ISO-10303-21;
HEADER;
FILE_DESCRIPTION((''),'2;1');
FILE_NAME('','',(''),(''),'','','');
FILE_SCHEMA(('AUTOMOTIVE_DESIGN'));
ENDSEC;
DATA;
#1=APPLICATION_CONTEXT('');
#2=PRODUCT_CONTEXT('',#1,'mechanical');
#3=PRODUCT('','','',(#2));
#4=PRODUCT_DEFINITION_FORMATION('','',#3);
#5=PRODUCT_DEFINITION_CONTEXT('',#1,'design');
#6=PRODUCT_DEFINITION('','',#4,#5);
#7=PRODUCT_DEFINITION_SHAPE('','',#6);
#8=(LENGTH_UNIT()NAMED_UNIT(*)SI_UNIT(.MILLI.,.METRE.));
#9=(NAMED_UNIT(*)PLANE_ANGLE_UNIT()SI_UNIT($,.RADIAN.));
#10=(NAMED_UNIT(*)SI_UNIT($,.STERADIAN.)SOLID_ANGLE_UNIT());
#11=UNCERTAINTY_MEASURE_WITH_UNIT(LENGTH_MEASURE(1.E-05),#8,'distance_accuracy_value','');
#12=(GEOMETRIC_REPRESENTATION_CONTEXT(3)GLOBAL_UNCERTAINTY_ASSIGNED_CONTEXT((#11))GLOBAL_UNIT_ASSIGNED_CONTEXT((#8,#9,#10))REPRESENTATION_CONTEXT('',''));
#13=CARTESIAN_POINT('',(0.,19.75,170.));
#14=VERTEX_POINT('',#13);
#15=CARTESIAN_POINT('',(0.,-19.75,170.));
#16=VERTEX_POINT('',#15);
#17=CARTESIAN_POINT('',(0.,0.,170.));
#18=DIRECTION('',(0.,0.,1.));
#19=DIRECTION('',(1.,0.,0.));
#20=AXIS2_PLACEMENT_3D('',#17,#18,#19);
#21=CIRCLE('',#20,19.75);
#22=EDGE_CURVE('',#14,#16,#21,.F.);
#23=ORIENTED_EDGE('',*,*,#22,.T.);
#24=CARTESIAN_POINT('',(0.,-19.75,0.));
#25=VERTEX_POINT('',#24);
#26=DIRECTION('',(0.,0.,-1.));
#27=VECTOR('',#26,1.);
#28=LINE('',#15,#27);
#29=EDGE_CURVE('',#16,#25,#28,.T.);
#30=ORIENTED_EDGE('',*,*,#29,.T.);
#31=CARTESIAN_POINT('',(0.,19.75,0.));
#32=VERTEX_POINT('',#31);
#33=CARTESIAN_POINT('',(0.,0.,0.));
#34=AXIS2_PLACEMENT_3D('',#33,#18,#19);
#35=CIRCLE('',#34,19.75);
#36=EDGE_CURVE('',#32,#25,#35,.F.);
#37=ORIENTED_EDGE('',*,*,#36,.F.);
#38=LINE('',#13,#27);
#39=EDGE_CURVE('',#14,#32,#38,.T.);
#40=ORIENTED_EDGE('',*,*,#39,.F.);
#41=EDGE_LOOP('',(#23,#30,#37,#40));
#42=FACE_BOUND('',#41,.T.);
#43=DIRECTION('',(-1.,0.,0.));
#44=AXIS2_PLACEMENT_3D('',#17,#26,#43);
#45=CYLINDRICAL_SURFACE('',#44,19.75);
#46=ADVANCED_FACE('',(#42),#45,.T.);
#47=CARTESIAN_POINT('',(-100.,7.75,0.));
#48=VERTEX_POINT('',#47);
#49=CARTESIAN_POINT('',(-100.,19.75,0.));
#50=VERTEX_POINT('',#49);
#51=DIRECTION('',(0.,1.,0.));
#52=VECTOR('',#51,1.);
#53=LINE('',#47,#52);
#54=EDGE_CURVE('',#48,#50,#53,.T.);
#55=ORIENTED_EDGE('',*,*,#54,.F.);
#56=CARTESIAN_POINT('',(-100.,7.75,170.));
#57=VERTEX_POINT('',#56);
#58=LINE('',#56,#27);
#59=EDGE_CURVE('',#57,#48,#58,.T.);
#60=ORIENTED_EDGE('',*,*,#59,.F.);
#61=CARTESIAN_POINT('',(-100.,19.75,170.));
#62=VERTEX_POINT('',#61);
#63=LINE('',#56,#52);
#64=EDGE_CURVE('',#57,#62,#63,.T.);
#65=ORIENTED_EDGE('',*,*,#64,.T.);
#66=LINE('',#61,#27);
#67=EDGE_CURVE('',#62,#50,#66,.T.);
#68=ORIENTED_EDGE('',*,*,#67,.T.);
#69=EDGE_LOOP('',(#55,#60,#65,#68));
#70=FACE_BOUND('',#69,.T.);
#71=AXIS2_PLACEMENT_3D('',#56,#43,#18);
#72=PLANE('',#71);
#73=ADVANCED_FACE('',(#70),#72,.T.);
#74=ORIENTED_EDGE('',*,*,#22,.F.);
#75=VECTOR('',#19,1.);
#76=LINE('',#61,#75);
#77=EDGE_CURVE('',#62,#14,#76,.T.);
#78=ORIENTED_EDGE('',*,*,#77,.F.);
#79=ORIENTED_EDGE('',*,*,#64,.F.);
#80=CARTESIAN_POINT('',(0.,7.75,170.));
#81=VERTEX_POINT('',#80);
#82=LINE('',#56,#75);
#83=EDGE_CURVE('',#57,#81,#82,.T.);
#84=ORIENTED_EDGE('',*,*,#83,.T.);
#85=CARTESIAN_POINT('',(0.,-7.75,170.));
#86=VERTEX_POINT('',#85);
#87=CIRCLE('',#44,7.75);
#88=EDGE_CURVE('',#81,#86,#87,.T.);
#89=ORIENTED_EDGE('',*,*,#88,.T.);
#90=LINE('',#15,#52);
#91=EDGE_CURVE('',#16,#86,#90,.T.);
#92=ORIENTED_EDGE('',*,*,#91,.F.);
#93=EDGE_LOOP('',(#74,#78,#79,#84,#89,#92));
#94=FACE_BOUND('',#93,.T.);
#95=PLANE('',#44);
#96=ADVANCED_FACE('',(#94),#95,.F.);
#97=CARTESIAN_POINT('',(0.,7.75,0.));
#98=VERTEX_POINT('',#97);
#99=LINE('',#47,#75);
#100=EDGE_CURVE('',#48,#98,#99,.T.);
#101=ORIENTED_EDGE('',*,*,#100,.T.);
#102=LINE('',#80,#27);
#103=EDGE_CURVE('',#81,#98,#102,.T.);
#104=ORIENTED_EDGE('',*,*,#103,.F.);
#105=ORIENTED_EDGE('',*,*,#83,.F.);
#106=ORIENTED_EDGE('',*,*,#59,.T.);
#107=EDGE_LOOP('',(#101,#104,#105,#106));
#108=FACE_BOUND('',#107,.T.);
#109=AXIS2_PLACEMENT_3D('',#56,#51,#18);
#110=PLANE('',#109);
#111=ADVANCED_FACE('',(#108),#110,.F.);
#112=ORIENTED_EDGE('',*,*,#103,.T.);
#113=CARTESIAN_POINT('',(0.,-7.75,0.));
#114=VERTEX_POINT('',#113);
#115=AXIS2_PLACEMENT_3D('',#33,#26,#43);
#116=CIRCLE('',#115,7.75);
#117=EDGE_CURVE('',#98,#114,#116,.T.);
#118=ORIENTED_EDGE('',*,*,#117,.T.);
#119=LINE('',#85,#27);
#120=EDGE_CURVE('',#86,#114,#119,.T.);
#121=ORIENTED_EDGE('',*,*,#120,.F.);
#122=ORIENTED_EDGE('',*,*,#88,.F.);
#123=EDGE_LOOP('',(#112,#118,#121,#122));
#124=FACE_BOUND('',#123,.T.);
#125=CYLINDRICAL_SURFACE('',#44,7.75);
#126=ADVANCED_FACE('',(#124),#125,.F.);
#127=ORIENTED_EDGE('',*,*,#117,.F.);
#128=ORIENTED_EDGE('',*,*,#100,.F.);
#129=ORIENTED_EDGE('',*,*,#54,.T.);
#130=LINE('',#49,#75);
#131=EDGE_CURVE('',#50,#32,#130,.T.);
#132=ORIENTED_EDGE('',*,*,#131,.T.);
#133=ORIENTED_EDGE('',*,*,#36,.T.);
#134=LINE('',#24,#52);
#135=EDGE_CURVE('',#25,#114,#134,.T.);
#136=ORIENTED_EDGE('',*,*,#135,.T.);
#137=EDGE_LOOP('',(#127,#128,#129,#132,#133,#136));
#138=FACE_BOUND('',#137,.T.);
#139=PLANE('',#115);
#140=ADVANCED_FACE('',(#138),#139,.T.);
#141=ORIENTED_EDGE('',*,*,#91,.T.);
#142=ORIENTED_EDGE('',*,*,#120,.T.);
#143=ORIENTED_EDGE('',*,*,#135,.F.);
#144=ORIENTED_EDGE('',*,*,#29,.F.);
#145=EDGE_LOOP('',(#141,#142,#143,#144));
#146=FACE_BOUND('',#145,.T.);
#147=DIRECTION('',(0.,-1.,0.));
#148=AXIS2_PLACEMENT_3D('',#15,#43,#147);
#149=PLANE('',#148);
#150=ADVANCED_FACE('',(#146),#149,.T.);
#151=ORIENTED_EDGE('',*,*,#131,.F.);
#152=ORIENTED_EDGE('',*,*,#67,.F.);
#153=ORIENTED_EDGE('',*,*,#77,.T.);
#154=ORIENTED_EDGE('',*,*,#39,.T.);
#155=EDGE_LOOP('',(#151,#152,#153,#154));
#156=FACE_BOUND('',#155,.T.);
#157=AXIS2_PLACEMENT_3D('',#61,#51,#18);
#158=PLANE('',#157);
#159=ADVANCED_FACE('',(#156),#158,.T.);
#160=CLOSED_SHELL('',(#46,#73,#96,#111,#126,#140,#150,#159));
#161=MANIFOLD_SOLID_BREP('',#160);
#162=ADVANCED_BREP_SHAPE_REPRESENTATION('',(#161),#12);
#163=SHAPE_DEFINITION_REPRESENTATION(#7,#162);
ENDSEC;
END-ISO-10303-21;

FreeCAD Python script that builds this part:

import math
import FreeCAD as App
import Part
import Sketcher
from FreeCAD import Vector

doc = App.newDocument("Part")
body = doc.addObject("PartDesign::Body", "Body")

sketch1 = body.newObject("Sketcher::SketchObject", "Sketch")
sketch1.AttachmentSupport = (doc.getObject("XY_Plane"), [""])
sketch1.MapMode = "FlatFace"
sketch1.addGeometry(Part.LineSegment(Vector(-100, 8, 0), Vector(0, 8, 0)), False)
sketch1.addGeometry(Part.ArcOfCircle(Part.Circle(Vector(0, 0, 0), Vector(0, 0, 1), 8), math.radians(-90), math.radians(90)), False)
sketch1.addGeometry(Part.LineSegment(Vector(0, -8, 0), Vector(0, -20, 0)), False)
sketch1.addGeometry(Part.ArcOfCircle(Part.Circle(Vector(0, 0, 0), Vector(0, 0, 1), 20), math.radians(-90), math.radians(90)), False)
sketch1.addGeometry(Part.LineSegment(Vector(0, 20, 0), Vector(-100, 20, 0)), False)
sketch1.addGeometry(Part.LineSegment(Vector(-100, 20, 0), Vector(-100, 8, 0)), False)
sketch1.addConstraint(Sketcher.Constraint("Tangent", 0, 2, 1, 2))
sketch1.addConstraint(Sketcher.Constraint("Coincident", 1, 1, 2, 1))
sketch1.addConstraint(Sketcher.Constraint("Coincident", 2, 2, 3, 1))
sketch1.addConstraint(Sketcher.Constraint("Tangent", 3, 2, 4, 1))
sketch1.addConstraint(Sketcher.Constraint("Coincident", 4, 2, 5, 1))
sketch1.addConstraint(Sketcher.Constraint("Coincident", 5, 2, 0, 1))
sketch1.addConstraint(Sketcher.Constraint("Horizontal", 0))
sketch1.addConstraint(Sketcher.Constraint("Vertical", 2))
sketch1.addConstraint(Sketcher.Constraint("Horizontal", 4))
sketch1.addConstraint(Sketcher.Constraint("Vertical", 5))
sketch1.addConstraint(Sketcher.Constraint("Coincident", 1, 3, -1, 1))
sketch1.addConstraint(Sketcher.Constraint("Coincident", 3, 3, -1, 1))
sketch1.addConstraint(Sketcher.Constraint("PointOnObject", 1, 1, -2))
sketch1.addConstraint(Sketcher.Constraint("DistanceX", 0, 1, 0, 2, 100.0))
sketch1.addConstraint(Sketcher.Constraint("DistanceY", 2, 2, 2, 1, 12.0))
sketch1.addConstraint(Sketcher.Constraint("Radius", 1, 7.75))
pad1 = body.newObject("PartDesign::Pad", "Pad")
pad1.Profile = sketch1
pad1.Length = 170

doc.recompute()
